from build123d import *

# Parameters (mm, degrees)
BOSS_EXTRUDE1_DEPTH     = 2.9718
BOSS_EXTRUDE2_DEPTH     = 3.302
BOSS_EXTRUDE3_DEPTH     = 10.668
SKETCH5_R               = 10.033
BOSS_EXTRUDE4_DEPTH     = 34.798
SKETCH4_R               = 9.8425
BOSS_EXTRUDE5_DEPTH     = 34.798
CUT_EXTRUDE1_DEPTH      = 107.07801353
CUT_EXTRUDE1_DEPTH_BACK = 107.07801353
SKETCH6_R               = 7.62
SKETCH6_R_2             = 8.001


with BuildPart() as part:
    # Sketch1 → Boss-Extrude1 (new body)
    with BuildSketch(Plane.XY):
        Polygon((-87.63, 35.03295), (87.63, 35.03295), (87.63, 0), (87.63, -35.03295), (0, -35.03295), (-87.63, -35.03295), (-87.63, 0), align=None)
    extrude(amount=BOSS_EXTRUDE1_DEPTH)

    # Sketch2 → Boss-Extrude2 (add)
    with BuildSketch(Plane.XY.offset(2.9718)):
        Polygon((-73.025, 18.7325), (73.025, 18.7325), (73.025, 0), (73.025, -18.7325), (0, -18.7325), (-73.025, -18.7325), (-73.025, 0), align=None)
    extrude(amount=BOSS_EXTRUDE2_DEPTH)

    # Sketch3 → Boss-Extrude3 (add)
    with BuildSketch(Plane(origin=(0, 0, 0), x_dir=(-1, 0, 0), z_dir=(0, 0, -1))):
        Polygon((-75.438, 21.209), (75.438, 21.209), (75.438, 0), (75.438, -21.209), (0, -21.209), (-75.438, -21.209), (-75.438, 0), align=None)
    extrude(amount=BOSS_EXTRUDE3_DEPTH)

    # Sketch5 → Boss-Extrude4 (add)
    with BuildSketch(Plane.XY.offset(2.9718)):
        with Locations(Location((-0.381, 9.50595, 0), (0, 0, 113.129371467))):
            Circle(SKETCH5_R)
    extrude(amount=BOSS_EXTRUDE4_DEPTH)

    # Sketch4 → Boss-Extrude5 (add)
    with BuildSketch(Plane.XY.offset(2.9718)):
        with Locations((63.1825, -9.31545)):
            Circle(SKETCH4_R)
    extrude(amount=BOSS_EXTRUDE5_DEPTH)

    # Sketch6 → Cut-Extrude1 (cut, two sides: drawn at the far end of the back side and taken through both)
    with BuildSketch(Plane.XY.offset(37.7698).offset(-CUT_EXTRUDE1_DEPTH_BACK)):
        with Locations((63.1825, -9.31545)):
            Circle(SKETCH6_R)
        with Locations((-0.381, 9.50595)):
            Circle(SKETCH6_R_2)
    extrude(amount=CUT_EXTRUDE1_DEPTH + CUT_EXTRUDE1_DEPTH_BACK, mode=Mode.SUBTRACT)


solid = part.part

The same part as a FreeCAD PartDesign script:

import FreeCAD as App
import Part
import Sketcher
from FreeCAD import Vector
Q = App.Units.Quantity

doc = App.newDocument("Part")
body = doc.addObject("PartDesign::Body", "Body")

sketch1 = doc.addObject("Sketcher::SketchObject", "Sketch")
body.addObject(sketch1)
sketch1.AttachmentSupport = (doc.XY_Plane, [""])
sketch1.MapMode = "FlatFace"
sketch1.addGeometry([
    Part.LineSegment(Vector(87.63, 35.03295, 0), Vector(-87.63, 35.03295, 0)),
    Part.LineSegment(Vector(-87.63, 35.03295, 0), Vector(-87.63, -35.03295, 0)),
    Part.LineSegment(Vector(-87.63, -35.03295, 0), Vector(87.63, -35.03295, 0)),
    Part.LineSegment(Vector(87.63, -35.03295, 0), Vector(87.63, 35.03295, 0)),
], False)
sketch1.addConstraint([
    Sketcher.Constraint("Coincident", 0, 2, 1, 1),
    Sketcher.Constraint("Coincident", 1, 2, 2, 1),
    Sketcher.Constraint("Coincident", 2, 2, 3, 1),
    Sketcher.Constraint("Coincident", 3, 2, 0, 1),
    Sketcher.Constraint("Horizontal", 0),
    Sketcher.Constraint("Vertical", 1),
    Sketcher.Constraint("Horizontal", 2),
    Sketcher.Constraint("Vertical", 3),
    Sketcher.Constraint("Symmetric", 0, 2, 2, 2, -1, 1),
    Sketcher.Constraint("DistanceX", 0, 2, 0, 1, Q("6.9 in")),
    Sketcher.Constraint("DistanceY", 1, 2, 1, 1, Q("2.7585 in")),
])
pad1 = doc.addObject("PartDesign::Pad", "Pad")
body.addObject(pad1)
pad1.Profile = sketch1
pad1.Length = Q("0.117 in")

sketch2 = doc.addObject("Sketcher::SketchObject", "Sketch001")
body.addObject(sketch2)
sketch2.AttachmentSupport = (doc.XY_Plane, [""])
sketch2.MapMode = "FlatFace"
sketch2.AttachmentOffset = App.Placement(Vector(0, 0, 0.117 * 25.4), App.Rotation())
sketch2.addGeometry([
    Part.LineSegment(Vector(73.025, 18.7325, 0), Vector(-73.025, 18.7325, 0)),
    Part.LineSegment(Vector(-73.025, 18.7325, 0), Vector(-73.025, -18.7325, 0)),
    Part.LineSegment(Vector(-73.025, -18.7325, 0), Vector(73.025, -18.7325, 0)),
    Part.LineSegment(Vector(73.025, -18.7325, 0), Vector(73.025, 18.7325, 0)),
], False)
sketch2.addConstraint([
    Sketcher.Constraint("Coincident", 0, 2, 1, 1),
    Sketcher.Constraint("Coincident", 1, 2, 2, 1),
    Sketcher.Constraint("Coincident", 2, 2, 3, 1),
    Sketcher.Constraint("Coincident", 3, 2, 0, 1),
    Sketcher.Constraint("Horizontal", 0),
    Sketcher.Constraint("Vertical", 1),
    Sketcher.Constraint("Horizontal", 2),
    Sketcher.Constraint("Vertical", 3),
    Sketcher.Constraint("Symmetric", 0, 2, 2, 2, -1, 1),
    Sketcher.Constraint("DistanceX", 0, 2, 0, 1, Q("5.75 in")),
    Sketcher.Constraint("DistanceY", 1, 2, 1, 1, Q("1.475 in")),
])
pad2 = doc.addObject("PartDesign::Pad", "Pad001")
body.addObject(pad2)
pad2.Profile = sketch2
pad2.Length = Q("0.13 in")

sketch3 = doc.addObject("Sketcher::SketchObject", "Sketch002")
body.addObject(sketch3)
sketch3.AttachmentSupport = (doc.XY_Plane, [""])
sketch3.MapMode = "FlatFace"
sketch3.addGeometry([
    Part.LineSegment(Vector(-75.438, 21.209, 0), Vector(75.438, 21.209, 0)),
    Part.LineSegment(Vector(75.438, 21.209, 0), Vector(75.438, -21.209, 0)),
    Part.LineSegment(Vector(75.438, -21.209, 0), Vector(-75.438, -21.209, 0)),
    Part.LineSegment(Vector(-75.438, -21.209, 0), Vector(-75.438, 21.209, 0)),
], False)
sketch3.addConstraint([
    Sketcher.Constraint("Coincident", 0, 2, 1, 1),
    Sketcher.Constraint("Coincident", 1, 2, 2, 1),
    Sketcher.Constraint("Coincident", 2, 2, 3, 1),
    Sketcher.Constraint("Coincident", 3, 2, 0, 1),
    Sketcher.Constraint("Horizontal", 0),
    Sketcher.Constraint("Vertical", 1),
    Sketcher.Constraint("Horizontal", 2),
    Sketcher.Constraint("Vertical", 3),
    Sketcher.Constraint("Symmetric", 0, 2, 2, 2, -1, 1),
    Sketcher.Constraint("DistanceX", 0, 1, 0, 2, Q("5.94 in")),
    Sketcher.Constraint("DistanceY", 1, 2, 1, 1, Q("1.67 in")),
])
pad3 = doc.addObject("PartDesign::Pad", "Pad002")
body.addObject(pad3)
pad3.Profile = sketch3
pad3.Length = Q("0.42 in")
pad3.Reversed = True

sketch4 = doc.addObject("Sketcher::SketchObject", "Sketch003")
body.addObject(sketch4)
sketch4.AttachmentSupport = (doc.XY_Plane, [""])
sketch4.MapMode = "FlatFace"
sketch4.AttachmentOffset = App.Placement(Vector(0, 0, 0.117 * 25.4), App.Rotation())
sketch4.addGeometry(Part.Circle(Vector(-0.381, 9.50595, 0), Vector(0, 0, 1), 10.033), False)
sketch4.addConstraint([
    Sketcher.Constraint("Diameter", 0, Q("0.79 in")),
    Sketcher.Constraint("DistanceX", 0, 3, -1, 1, Q("0.015 in")),
    Sketcher.Constraint("DistanceY", -1, 1, 0, 3, 9.50595),
])
pad4 = doc.addObject("PartDesign::Pad", "Pad003")
body.addObject(pad4)
pad4.Profile = sketch4
pad4.Length = Q("1.37 in")

sketch5 = doc.addObject("Sketcher::SketchObject", "Sketch004")
body.addObject(sketch5)
sketch5.AttachmentSupport = (doc.XY_Plane, [""])
sketch5.MapMode = "FlatFace"
sketch5.AttachmentOffset = App.Placement(Vector(0, 0, 0.117 * 25.4), App.Rotation())
sketch5.addGeometry(Part.Circle(Vector(63.1825, -9.31545, 0), Vector(0, 0, 1), 9.8425), False)
sketch5.addConstraint([
    Sketcher.Constraint("Diameter", 0, Q("0.775 in")),
    Sketcher.Constraint("DistanceX", -1, 1, 0, 3, Q("2.4875 in")),
    Sketcher.Constraint("DistanceY", 0, 3, -1, 1, 9.31545),
])
pad5 = doc.addObject("PartDesign::Pad", "Pad004")
body.addObject(pad5)
pad5.Profile = sketch5
pad5.Length = Q("1.37 in")

sketch6 = doc.addObject("Sketcher::SketchObject", "Sketch005")
body.addObject(sketch6)
sketch6.AttachmentSupport = (doc.XY_Plane, [""])
sketch6.MapMode = "FlatFace"
sketch6.AttachmentOffset = App.Placement(Vector(0, 0, 1.487 * 25.4), App.Rotation())
sketch6.addGeometry([
    Part.Circle(Vector(63.1825, -9.31545, 0), Vector(0, 0, 1), 7.62),
    Part.Circle(Vector(-0.381, 9.50595, 0), Vector(0, 0, 1), 8.001),
], False)
sketch6.addConstraint([
    Sketcher.Constraint("Diameter", 0, Q("0.6 in")),
    Sketcher.Constraint("Diameter", 1, Q("0.63 in")),
    Sketcher.Constraint("DistanceX", 1, 3, -1, 1, Q("0.015 in")),
    Sketcher.Constraint("DistanceY", 0, 3, 1, 3, Q("0.741 in")),
    Sketcher.Constraint("DistanceX", -1, 1, 0, 3, Q("2.4875 in")),
    Sketcher.Constraint("DistanceY", 0, 3, -1, 1, 9.31545),
])
pocket1 = doc.addObject("PartDesign::Pocket", "Pocket")
body.addObject(pocket1)
pocket1.Profile = sketch6
pocket1.Type = "ThroughAll"
pocket1.Midplane = True

doc.recompute()
